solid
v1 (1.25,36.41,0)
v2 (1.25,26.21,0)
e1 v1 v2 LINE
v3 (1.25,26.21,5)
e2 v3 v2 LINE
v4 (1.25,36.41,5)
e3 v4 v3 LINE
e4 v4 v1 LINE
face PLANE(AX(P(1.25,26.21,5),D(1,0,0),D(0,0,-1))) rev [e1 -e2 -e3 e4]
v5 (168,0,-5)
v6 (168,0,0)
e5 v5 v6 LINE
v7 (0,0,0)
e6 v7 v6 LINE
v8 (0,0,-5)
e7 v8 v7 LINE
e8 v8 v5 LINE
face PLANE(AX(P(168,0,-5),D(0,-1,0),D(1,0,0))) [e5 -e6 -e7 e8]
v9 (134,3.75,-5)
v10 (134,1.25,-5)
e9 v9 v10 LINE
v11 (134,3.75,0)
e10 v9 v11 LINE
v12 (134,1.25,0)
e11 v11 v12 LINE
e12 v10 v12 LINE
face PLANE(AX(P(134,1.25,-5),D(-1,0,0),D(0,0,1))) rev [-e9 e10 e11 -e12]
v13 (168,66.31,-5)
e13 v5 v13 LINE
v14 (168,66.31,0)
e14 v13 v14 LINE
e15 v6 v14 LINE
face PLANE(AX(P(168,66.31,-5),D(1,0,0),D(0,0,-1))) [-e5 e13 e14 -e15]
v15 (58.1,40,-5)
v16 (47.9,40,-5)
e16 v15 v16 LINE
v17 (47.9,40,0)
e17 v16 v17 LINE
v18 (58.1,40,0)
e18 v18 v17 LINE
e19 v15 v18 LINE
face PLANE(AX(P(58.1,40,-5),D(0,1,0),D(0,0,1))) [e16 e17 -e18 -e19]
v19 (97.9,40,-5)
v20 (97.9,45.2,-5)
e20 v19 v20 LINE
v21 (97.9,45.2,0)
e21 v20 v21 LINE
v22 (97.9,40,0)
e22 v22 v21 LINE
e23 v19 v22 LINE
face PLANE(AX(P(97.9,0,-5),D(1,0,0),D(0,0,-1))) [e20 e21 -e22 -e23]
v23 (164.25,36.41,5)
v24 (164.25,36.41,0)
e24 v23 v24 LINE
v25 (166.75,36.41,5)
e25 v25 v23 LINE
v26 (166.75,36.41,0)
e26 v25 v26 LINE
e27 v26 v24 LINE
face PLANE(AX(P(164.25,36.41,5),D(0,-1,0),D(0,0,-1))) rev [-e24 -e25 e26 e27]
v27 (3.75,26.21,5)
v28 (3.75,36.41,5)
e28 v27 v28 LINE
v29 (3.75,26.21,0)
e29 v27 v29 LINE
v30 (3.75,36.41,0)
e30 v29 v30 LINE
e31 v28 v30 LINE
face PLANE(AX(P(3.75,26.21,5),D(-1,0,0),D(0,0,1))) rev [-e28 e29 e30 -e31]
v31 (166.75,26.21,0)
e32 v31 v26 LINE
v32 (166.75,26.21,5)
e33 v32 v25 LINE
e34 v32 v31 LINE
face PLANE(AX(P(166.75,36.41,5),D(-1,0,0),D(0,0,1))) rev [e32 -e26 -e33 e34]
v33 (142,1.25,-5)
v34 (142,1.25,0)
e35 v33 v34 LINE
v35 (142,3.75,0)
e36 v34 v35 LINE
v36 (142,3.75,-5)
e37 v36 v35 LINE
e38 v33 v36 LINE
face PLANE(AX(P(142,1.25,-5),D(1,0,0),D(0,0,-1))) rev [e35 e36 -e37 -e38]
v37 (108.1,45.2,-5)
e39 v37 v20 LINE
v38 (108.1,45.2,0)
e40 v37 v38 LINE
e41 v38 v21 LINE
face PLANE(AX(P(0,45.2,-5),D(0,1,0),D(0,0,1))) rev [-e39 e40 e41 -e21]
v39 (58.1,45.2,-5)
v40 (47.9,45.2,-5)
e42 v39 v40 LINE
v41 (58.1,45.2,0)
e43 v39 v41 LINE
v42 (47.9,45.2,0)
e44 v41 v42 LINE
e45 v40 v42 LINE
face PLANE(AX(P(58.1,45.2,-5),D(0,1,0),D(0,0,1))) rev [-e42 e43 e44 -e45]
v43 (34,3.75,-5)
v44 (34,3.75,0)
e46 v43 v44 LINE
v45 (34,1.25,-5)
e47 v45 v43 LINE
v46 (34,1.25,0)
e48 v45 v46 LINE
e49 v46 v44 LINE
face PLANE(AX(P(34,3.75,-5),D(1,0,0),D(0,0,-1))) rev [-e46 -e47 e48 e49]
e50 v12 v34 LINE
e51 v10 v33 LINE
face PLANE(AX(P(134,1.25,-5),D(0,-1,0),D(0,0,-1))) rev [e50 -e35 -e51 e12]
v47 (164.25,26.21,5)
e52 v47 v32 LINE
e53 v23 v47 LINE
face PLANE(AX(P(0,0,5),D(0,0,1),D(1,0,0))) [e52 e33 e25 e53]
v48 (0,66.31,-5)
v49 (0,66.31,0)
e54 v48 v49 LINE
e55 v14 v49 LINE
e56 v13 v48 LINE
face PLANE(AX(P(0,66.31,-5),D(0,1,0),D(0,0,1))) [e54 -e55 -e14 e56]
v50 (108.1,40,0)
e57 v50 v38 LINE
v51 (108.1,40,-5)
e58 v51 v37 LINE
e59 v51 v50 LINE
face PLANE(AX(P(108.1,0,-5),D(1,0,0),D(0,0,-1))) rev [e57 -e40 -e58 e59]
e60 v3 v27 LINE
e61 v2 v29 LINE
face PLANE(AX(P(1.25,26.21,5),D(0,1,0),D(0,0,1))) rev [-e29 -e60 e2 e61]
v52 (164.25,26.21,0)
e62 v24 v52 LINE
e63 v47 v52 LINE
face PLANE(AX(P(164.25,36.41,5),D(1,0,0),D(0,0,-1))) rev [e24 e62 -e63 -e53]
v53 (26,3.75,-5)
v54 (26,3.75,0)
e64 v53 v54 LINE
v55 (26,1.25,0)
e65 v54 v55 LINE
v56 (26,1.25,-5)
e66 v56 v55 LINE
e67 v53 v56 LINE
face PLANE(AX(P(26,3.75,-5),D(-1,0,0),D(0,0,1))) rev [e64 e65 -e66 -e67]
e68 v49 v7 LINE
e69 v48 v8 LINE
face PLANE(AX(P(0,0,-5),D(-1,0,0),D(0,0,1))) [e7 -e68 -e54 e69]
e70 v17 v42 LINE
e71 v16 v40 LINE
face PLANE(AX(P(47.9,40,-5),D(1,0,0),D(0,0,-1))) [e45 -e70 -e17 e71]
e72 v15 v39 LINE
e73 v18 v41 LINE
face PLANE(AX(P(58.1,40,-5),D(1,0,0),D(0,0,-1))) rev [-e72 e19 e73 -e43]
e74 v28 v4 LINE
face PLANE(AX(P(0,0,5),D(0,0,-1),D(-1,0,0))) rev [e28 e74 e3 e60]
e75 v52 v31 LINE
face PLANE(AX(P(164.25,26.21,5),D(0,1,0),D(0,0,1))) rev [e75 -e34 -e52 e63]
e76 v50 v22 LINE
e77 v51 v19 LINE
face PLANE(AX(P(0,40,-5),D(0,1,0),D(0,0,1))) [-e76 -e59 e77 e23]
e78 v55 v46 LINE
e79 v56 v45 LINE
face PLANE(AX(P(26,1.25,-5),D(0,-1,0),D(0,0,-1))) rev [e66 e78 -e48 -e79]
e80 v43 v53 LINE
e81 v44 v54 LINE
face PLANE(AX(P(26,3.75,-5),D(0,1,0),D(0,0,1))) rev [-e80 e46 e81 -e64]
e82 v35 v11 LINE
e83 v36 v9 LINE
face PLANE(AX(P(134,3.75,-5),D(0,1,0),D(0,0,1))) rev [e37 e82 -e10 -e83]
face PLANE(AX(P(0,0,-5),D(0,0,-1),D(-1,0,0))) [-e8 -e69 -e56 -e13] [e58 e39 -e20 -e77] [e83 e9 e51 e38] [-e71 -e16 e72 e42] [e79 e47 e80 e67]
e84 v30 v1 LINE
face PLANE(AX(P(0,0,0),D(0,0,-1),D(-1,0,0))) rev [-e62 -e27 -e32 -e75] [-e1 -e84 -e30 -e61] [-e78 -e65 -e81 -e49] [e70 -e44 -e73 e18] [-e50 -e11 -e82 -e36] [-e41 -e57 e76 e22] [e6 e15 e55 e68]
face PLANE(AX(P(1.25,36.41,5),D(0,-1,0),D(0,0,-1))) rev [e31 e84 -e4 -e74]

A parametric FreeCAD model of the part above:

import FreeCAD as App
import Part
import Sketcher

V = App.Vector
Q = App.Units.Quantity

doc = App.newDocument("Part")
params = doc.addObject("Spreadsheet::Sheet", "Params")
for row, (alias, value) in enumerate([
    ("sketch1_width", "168 mm"),
    ("sketch1_height", "66.31 mm"),
    ("pad1_length", "5 mm"),
    ("sketch2_width", "2.5 mm"),
    ("sketch2_height", "10.2 mm"),
    ("pad2_length", "5 mm"),
    ("sketch3_width", "10.2 mm"),
    ("sketch3_height", "5.2 mm"),
    ("sketch4_width", "8 mm"),
    ("sketch4_height", "2.5 mm"),
    ("sketch5_width", "2.5 mm"),
    ("sketch5_height", "10.2 mm"),
    ("pad3_length", "5 mm"),
], start=1):
    params.set(f"A{row}", alias)
    params.set(f"B{row}", "=" + value)
    params.setAlias(f"B{row}", alias)

body = doc.addObject("PartDesign::Body", "Body")

# Sketch on XY plane
sketch1 = doc.addObject("Sketcher::SketchObject", "Sketch")
body.addObject(sketch1)
sketch1.AttachmentSupport = (doc.XY_Plane, [""])
sketch1.MapMode = "FlatFace"
sketch1.addGeometry([
    Part.LineSegment(V(0, 66, 0), V(0, 0, 0)),
    Part.LineSegment(V(0, 0, 0), V(168, 0, 0)),
    Part.LineSegment(V(168, 0, 0), V(168, 66, 0)),
    Part.LineSegment(V(168, 66, 0), V(0, 66, 0)),
], False)
sketch1.addConstraint([
    Sketcher.Constraint("Coincident", 0, 2, 1, 1),
    Sketcher.Constraint("Coincident", 1, 2, 2, 1),
    Sketcher.Constraint("Coincident", 2, 2, 3, 1),
    Sketcher.Constraint("Coincident", 3, 2, 0, 1),
    Sketcher.Constraint("Vertical", 0),
    Sketcher.Constraint("Horizontal", 1),
    Sketcher.Constraint("Vertical", 2),
    Sketcher.Constraint("Horizontal", 3),
    Sketcher.Constraint("Coincident", 0, 2, -1, 1),
    Sketcher.Constraint("DistanceX", 1, 1, 1, 2, Q("168 mm")),
    Sketcher.Constraint("DistanceY", 0, 2, 0, 1, Q("66.31 mm")),
])
sketch1.setExpression("Constraints[9]", "Params.sketch1_width")
sketch1.setExpression("Constraints[10]", "Params.sketch1_height")
pad1 = doc.addObject("PartDesign::Pad", "Pad")
body.addObject(pad1)
pad1.Profile = sketch1
pad1.setExpression("Length", "Params.pad1_length")
pad1.Reversed = True

# Sketch on XY plane
sketch2 = doc.addObject("Sketcher::SketchObject", "Sketch001")
body.addObject(sketch2)
sketch2.AttachmentSupport = (doc.XY_Plane, [""])
sketch2.MapMode = "FlatFace"
sketch2.addGeometry([
    Part.LineSegment(V(1.2, 36.4, 0), V(1.2, 26.2, 0)),
    Part.LineSegment(V(1.2, 26.2, 0), V(3.8, 26.2, 0)),
    Part.LineSegment(V(3.8, 26.2, 0), V(3.8, 36.4, 0)),
    Part.LineSegment(V(3.8, 36.4, 0), V(1.2, 36.4, 0)),
], False)
sketch2.addConstraint([
    Sketcher.Constraint("Coincident", 0, 2, 1, 1),
    Sketcher.Constraint("Coincident", 1, 2, 2, 1),
    Sketcher.Constraint("Coincident", 2, 2, 3, 1),
    Sketcher.Constraint("Coincident", 3, 2, 0, 1),
    Sketcher.Constraint("Vertical", 0),
    Sketcher.Constraint("Horizontal", 1),
    Sketcher.Constraint("Vertical", 2),
    Sketcher.Constraint("Horizontal", 3),
    Sketcher.Constraint("DistanceX", 1, 1, 1, 2, Q("2.5 mm")),
    Sketcher.Constraint("DistanceY", 0, 2, 0, 1, Q("10.2 mm")),
    Sketcher.Constraint("DistanceX", -1, 1, 0, 2, Q("1.25 mm")),
    Sketcher.Constraint("DistanceY", -1, 1, 0, 2, Q("26.21 mm")),
])
sketch2.setExpression("Constraints[8]", "Params.sketch2_width")
sketch2.setExpression("Constraints[9]", "Params.sketch2_height")
pad2 = doc.addObject("PartDesign::Pad", "Pad001")
body.addObject(pad2)
pad2.Profile = sketch2
pad2.setExpression("Length", "Params.pad2_length")

# Sketch on XY plane
sketch3 = doc.addObject("Sketcher::SketchObject", "Sketch002")
body.addObject(sketch3)
sketch3.AttachmentSupport = (doc.XY_Plane, [""])
sketch3.MapMode = "FlatFace"
sketch3.addGeometry([
    Part.LineSegment(V(98, 45, 0), V(98, 40, 0)),  # 0
    Part.LineSegment(V(98, 40, 0), V(108, 40, 0)),  # 1
    Part.LineSegment(V(108, 40, 0), V(108, 45, 0)),  # 2
    Part.LineSegment(V(108, 45, 0), V(98, 45, 0)),  # 3
    Part.LineSegment(V(48, 45, 0), V(48, 40, 0)),  # 4
    Part.LineSegment(V(48, 40, 0), V(58, 40, 0)),  # 5
    Part.LineSegment(V(58, 40, 0), V(58, 45, 0)),  # 6
    Part.LineSegment(V(58, 45, 0), V(48, 45, 0)),  # 7
], False)
sketch3.addConstraint([
    Sketcher.Constraint("Coincident", 0, 2, 1, 1),
    Sketcher.Constraint("Coincident", 1, 2, 2, 1),
    Sketcher.Constraint("Coincident", 2, 2, 3, 1),
    Sketcher.Constraint("Coincident", 3, 2, 0, 1),
    Sketcher.Constraint("Coincident", 4, 2, 5, 1),
    Sketcher.Constraint("Coincident", 5, 2, 6, 1),
    Sketcher.Constraint("Coincident", 6, 2, 7, 1),
    Sketcher.Constraint("Coincident", 7, 2, 4, 1),
    Sketcher.Constraint("Vertical", 0),
    Sketcher.Constraint("Horizontal", 1),
    Sketcher.Constraint("Vertical", 2),
    Sketcher.Constraint("Horizontal", 3),
    Sketcher.Constraint("Vertical", 4),
    Sketcher.Constraint("Horizontal", 5),
    Sketcher.Constraint("Vertical", 6),
    Sketcher.Constraint("Horizontal", 7),
    Sketcher.Constraint("Horizontal", 1, 2, 4, 2),
    Sketcher.Constraint("Horizontal", 3, 2, 6, 2),
    Sketcher.Constraint("Equal", 3, 5),
    Sketcher.Constraint("DistanceX", 1, 1, 1, 2, Q("10.2 mm")),
    Sketcher.Constraint("DistanceY", 0, 2, 0, 1, Q("5.2 mm")),
    Sketcher.Constraint("DistanceY", -1, 1, 0, 2, Q("40 mm")),
    Sketcher.Constraint("DistanceX", 4, 2, 0, 2, Q("50 mm")),
    Sketcher.Constraint("DistanceX", -1, 1, 0, 2, Q("97.9 mm")),
])
sketch3.setExpression("Constraints[19]", "Params.sketch3_width")
sketch3.setExpression("Constraints[20]", "Params.sketch3_height")
pocket1 = doc.addObject("PartDesign::Pocket", "Pocket")
body.addObject(pocket1)
pocket1.Profile = sketch3
pocket1.Type = "ThroughAll"

# Sketch on XY plane
sketch4 = doc.addObject("Sketcher::SketchObject", "Sketch003")
body.addObject(sketch4)
sketch4.AttachmentSupport = (doc.XY_Plane, [""])
sketch4.MapMode = "FlatFace"
sketch4.addGeometry([
    Part.LineSegment(V(26, 3.8, 0), V(26, 1.2, 0)),  # 0
    Part.LineSegment(V(26, 1.2, 0), V(34, 1.2, 0)),  # 1
    Part.LineSegment(V(34, 1.2, 0), V(34, 3.8, 0)),  # 2
    Part.LineSegment(V(34, 3.8, 0), V(26, 3.8, 0)),  # 3
    Part.LineSegment(V(134, 3.8, 0), V(134, 1.2, 0)),  # 4
    Part.LineSegment(V(134, 1.2, 0), V(142, 1.2, 0)),  # 5
    Part.LineSegment(V(142, 1.2, 0), V(142, 3.8, 0)),  # 6
    Part.LineSegment(V(142, 3.8, 0), V(134, 3.8, 0)),  # 7
], False)
sketch4.addConstraint([
    Sketcher.Constraint("Coincident", 0, 2, 1, 1),
    Sketcher.Constraint("Coincident", 1, 2, 2, 1),
    Sketcher.Constraint("Coincident", 2, 2, 3, 1),
    Sketcher.Constraint("Coincident", 3, 2, 0, 1),
    Sketcher.Constraint("Coincident", 4, 2, 5, 1),
    Sketcher.Constraint("Coincident", 5, 2, 6, 1),
    Sketcher.Constraint("Coincident", 6, 2, 7, 1),
    Sketcher.Constraint("Coincident", 7, 2, 4, 1),
    Sketcher.Constraint("Vertical", 0),
    Sketcher.Constraint("Horizontal", 1),
    Sketcher.Constraint("Vertical", 2),
    Sketcher.Constraint("Horizontal", 3),
    Sketcher.Constraint("Vertical", 4),
    Sketcher.Constraint("Horizontal", 5),
    Sketcher.Constraint("Vertical", 6),
    Sketcher.Constraint("Horizontal", 7),
    Sketcher.Constraint("Horizontal", 1, 2, 4, 2),
    Sketcher.Constraint("Horizontal", 3, 2, 6, 2),
    Sketcher.Constraint("Equal", 3, 5),
    Sketcher.Constraint("DistanceX", 1, 1, 1, 2, Q("8 mm")),
    Sketcher.Constraint("DistanceY", 0, 2, 0, 1, Q("2.5 mm")),
    Sketcher.Constraint("DistanceX", -1, 1, 0, 2, Q("26 mm")),
    Sketcher.Constraint("DistanceX", -1, 1, 4, 2, Q("134 mm")),
    Sketcher.Constraint("DistanceY", -1, 1, 0, 2, Q("1.25 mm")),
])
sketch4.setExpression("Constraints[19]", "Params.sketch4_width")
sketch4.setExpression("Constraints[20]", "Params.sketch4_height")
pocket2 = doc.addObject("PartDesign::Pocket", "Pocket001")
body.addObject(pocket2)
pocket2.Profile = sketch4
pocket2.Type = "ThroughAll"

# Sketch on XY plane
sketch5 = doc.addObject("Sketcher::SketchObject", "Sketch004")
body.addObject(sketch5)
sketch5.AttachmentSupport = (doc.XY_Plane, [""])
sketch5.MapMode = "FlatFace"
sketch5.addGeometry([
    Part.LineSegment(V(164.2, 36.4, 0), V(164.2, 26.2, 0)),
    Part.LineSegment(V(164.2, 26.2, 0), V(166.8, 26.2, 0)),
    Part.LineSegment(V(166.8, 26.2, 0), V(166.8, 36.4, 0)),
    Part.LineSegment(V(166.8, 36.4, 0), V(164.2, 36.4, 0)),
], False)
sketch5.addConstraint([
    Sketcher.Constraint("Coincident", 0, 2, 1, 1),
    Sketcher.Constraint("Coincident", 1, 2, 2, 1),
    Sketcher.Constraint("Coincident", 2, 2, 3, 1),
    Sketcher.Constraint("Coincident", 3, 2, 0, 1),
    Sketcher.Constraint("Vertical", 0),
    Sketcher.Constraint("Horizontal", 1),
    Sketcher.Constraint("Vertical", 2),
    Sketcher.Constraint("Horizontal", 3),
    Sketcher.Constraint("DistanceX", 1, 1, 1, 2, Q("2.5 mm")),
    Sketcher.Constraint("DistanceY", 0, 2, 0, 1, Q("10.2 mm")),
    Sketcher.Constraint("DistanceX", -1, 1, 0, 2, Q("164.25 mm")),
    Sketcher.Constraint("DistanceY", -1, 1, 0, 2, Q("26.21 mm")),
])
sketch5.setExpression("Constraints[8]", "Params.sketch5_width")
sketch5.setExpression("Constraints[9]", "Params.sketch5_height")
pad3 = doc.addObject("PartDesign::Pad", "Pad002")
body.addObject(pad3)
pad3.Profile = sketch5
pad3.setExpression("Length", "Params.pad3_length")

doc.recompute()
